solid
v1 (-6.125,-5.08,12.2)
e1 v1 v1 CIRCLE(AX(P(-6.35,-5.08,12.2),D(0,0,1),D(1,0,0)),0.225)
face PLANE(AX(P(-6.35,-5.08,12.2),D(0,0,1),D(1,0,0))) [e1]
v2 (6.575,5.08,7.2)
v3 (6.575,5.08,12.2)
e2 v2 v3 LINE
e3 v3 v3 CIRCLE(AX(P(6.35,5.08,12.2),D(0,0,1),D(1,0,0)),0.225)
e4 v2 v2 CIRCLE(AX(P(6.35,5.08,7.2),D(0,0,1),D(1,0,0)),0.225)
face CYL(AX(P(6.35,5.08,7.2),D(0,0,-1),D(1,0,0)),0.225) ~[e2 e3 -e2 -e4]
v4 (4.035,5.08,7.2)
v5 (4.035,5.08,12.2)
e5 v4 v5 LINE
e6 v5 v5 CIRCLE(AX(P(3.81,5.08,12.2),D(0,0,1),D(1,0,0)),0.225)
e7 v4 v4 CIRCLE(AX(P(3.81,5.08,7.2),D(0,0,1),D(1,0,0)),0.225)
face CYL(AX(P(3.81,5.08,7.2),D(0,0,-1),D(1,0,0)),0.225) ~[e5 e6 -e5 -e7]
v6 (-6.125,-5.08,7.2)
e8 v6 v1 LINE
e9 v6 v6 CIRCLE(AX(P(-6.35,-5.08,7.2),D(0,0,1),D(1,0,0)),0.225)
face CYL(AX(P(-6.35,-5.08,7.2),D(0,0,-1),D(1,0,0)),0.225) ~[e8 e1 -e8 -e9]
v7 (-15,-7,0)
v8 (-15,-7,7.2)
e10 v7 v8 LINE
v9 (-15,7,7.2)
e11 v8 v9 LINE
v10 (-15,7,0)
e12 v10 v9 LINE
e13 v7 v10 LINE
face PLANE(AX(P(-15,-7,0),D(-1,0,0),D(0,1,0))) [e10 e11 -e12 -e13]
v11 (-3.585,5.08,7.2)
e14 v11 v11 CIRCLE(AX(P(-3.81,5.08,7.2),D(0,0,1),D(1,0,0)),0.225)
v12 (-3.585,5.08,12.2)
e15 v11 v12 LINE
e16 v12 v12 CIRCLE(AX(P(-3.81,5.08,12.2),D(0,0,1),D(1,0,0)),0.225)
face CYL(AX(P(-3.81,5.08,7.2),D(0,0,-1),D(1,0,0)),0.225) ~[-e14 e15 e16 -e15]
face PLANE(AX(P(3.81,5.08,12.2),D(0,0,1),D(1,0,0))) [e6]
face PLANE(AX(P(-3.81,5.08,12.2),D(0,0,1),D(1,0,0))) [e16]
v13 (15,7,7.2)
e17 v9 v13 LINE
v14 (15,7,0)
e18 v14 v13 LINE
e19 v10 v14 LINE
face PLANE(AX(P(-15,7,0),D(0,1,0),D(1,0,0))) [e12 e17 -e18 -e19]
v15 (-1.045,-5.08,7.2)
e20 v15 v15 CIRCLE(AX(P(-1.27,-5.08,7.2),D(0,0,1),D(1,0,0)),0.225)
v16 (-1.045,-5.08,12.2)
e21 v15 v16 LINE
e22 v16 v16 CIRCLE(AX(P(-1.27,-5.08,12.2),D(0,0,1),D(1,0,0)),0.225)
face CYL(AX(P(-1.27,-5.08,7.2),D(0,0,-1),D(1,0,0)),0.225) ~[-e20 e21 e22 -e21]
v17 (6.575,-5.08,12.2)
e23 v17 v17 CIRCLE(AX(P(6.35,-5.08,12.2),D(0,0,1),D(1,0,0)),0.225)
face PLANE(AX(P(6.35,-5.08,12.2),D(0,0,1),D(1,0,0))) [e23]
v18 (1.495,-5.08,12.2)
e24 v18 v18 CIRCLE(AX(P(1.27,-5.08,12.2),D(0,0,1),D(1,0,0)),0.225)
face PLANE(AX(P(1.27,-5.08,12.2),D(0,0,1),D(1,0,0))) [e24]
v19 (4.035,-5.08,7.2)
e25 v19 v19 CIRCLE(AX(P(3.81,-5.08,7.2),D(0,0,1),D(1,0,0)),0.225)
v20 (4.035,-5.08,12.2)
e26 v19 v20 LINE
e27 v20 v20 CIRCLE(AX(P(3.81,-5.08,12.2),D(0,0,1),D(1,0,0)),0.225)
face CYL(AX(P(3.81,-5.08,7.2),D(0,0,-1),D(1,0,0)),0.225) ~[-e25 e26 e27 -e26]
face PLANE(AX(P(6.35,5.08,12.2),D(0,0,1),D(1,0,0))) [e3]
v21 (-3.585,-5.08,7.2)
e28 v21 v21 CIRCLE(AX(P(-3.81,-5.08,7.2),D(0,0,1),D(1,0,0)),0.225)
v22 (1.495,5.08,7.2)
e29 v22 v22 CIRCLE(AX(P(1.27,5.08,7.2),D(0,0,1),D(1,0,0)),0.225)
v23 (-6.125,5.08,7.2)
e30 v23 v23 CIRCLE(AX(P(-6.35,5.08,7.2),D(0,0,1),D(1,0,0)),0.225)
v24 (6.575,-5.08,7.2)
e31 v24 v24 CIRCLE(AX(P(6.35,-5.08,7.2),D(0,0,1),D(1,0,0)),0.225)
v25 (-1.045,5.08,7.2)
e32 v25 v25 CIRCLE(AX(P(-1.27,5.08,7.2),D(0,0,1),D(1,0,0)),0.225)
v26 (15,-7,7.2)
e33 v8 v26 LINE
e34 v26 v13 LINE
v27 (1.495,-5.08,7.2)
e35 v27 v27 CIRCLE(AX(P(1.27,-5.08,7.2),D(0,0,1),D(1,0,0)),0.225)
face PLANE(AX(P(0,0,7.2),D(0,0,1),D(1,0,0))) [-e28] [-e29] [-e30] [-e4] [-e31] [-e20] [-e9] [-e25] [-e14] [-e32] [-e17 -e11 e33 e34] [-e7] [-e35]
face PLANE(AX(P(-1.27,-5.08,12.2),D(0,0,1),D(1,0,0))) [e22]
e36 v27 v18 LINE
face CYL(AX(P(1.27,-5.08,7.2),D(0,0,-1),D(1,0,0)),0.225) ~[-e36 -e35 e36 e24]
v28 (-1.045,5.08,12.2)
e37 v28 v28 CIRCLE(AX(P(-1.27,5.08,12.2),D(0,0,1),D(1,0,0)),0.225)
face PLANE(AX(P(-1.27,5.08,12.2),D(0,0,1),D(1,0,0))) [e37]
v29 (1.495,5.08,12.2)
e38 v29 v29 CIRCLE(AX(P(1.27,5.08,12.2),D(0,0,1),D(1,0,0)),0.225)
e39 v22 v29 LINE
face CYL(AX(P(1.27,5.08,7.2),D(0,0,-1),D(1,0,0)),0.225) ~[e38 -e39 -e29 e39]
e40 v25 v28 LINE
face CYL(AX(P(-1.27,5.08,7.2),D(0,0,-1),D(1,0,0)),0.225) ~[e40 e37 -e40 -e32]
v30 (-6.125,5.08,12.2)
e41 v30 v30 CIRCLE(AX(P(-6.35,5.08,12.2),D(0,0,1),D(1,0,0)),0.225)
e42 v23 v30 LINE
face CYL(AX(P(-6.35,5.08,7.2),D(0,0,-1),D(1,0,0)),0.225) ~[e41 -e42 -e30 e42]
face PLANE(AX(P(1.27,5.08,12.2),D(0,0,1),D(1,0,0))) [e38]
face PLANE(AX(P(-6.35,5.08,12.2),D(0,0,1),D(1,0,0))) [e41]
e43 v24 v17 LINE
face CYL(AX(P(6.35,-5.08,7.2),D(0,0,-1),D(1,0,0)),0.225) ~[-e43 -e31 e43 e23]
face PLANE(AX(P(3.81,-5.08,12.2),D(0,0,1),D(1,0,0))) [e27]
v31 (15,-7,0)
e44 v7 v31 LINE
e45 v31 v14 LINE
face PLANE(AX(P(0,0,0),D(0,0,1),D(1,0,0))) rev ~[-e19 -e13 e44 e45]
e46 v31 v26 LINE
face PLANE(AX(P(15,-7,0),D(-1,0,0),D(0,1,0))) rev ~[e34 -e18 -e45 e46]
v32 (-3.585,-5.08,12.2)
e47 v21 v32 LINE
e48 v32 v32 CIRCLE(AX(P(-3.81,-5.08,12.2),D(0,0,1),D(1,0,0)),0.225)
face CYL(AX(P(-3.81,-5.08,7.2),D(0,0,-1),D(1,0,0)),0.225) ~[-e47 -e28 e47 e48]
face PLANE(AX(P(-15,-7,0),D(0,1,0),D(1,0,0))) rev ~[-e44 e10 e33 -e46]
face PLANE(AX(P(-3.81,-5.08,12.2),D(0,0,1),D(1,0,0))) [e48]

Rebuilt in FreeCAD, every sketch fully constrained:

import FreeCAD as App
import Part
import Sketcher

doc = App.newDocument("Part")
body = doc.addObject("PartDesign::Body", "Body")

# Sketch on XY plane
sketch1 = doc.addObject("Sketcher::SketchObject", "Sketch")
body.addObject(sketch1)
sketch1.AttachmentSupport = (doc.XY_Plane, [""])
sketch1.MapMode = "FlatFace"
sketch1.addGeometry(Part.LineSegment(App.Vector(-15, 7, 0), App.Vector(-15, -7, 0)), False)
sketch1.addGeometry(Part.LineSegment(App.Vector(-15, -7, 0), App.Vector(15, -7, 0)), False)
sketch1.addGeometry(Part.LineSegment(App.Vector(15, -7, 0), App.Vector(15, 7, 0)), False)
sketch1.addGeometry(Part.LineSegment(App.Vector(15, 7, 0), App.Vector(-15, 7, 0)), False)
sketch1.addConstraint(Sketcher.Constraint("Coincident", 0, 2, 1, 1))
sketch1.addConstraint(Sketcher.Constraint("Coincident", 1, 2, 2, 1))
sketch1.addConstraint(Sketcher.Constraint("Coincident", 2, 2, 3, 1))
sketch1.addConstraint(Sketcher.Constraint("Coincident", 3, 2, 0, 1))
sketch1.addConstraint(Sketcher.Constraint("Vertical", 0))
sketch1.addConstraint(Sketcher.Constraint("Horizontal", 1))
sketch1.addConstraint(Sketcher.Constraint("Vertical", 2))
sketch1.addConstraint(Sketcher.Constraint("Horizontal", 3))
sketch1.addConstraint(Sketcher.Constraint("Symmetric", 0, 2, 2, 2, -1, 1))
sketch1.addConstraint(Sketcher.Constraint("DistanceX", 1, 1, 1, 2, 30.0))
sketch1.addConstraint(Sketcher.Constraint("DistanceY", 0, 2, 0, 1, 14.0))
pad1 = doc.addObject("PartDesign::Pad", "Pad")
body.addObject(pad1)
pad1.Profile = sketch1
pad1.Length = 7.2

# Sketch on XY plane
sketch2 = doc.addObject("Sketcher::SketchObject", "Sketch001")
body.addObject(sketch2)
sketch2.AttachmentSupport = (doc.XY_Plane, [""])
sketch2.MapMode = "FlatFace"
sketch2.AttachmentOffset = App.Placement(App.Vector(0, 0, 7.2), App.Rotation())
sketch2.addGeometry(Part.Circle(App.Vector(-3.81, -5.08, 0), App.Vector(0, 0, 1), 0.225), False)
sketch2.addGeometry(Part.Circle(App.Vector(-6.35, -5.08, 0), App.Vector(0, 0, 1), 0.225), False)
sketch2.addGeometry(Part.Circle(App.Vector(-1.27, -5.08, 0), App.Vector(0, 0, 1), 0.225), False)
sketch2.addGeometry(Part.Circle(App.Vector(1.27, -5.08, 0), App.Vector(0, 0, 1), 0.225), False)
sketch2.addGeometry(Part.Circle(App.Vector(3.81, -5.08, 0), App.Vector(0, 0, 1), 0.225), False)
sketch2.addGeometry(Part.Circle(App.Vector(6.35, -5.08, 0), App.Vector(0, 0, 1), 0.225), False)
sketch2.addGeometry(Part.Circle(App.Vector(-3.81, 5.08, 0), App.Vector(0, 0, 1), 0.225), False)
sketch2.addGeometry(Part.Circle(App.Vector(-6.35, 5.08, 0), App.Vector(0, 0, 1), 0.225), False)
sketch2.addGeometry(Part.Circle(App.Vector(-1.27, 5.08, 0), App.Vector(0, 0, 1), 0.225), False)
sketch2.addGeometry(Part.Circle(App.Vector(1.27, 5.08, 0), App.Vector(0, 0, 1), 0.225), False)
sketch2.addGeometry(Part.Circle(App.Vector(3.81, 5.08, 0), App.Vector(0, 0, 1), 0.225), False)
sketch2.addGeometry(Part.Circle(App.Vector(6.35, 5.08, 0), App.Vector(0, 0, 1), 0.225), False)
sketch2.addConstraint(Sketcher.Constraint("Equal", 0, 1))
sketch2.addConstraint(Sketcher.Constraint("Equal", 1, 2))
sketch2.addConstraint(Sketcher.Constraint("Equal", 2, 3))
sketch2.addConstraint(Sketcher.Constraint("Equal", 3, 4))
sketch2.addConstraint(Sketcher.Constraint("Equal", 4, 5))
sketch2.addConstraint(Sketcher.Constraint("Equal", 5, 6))
sketch2.addConstraint(Sketcher.Constraint("Equal", 6, 7))
sketch2.addConstraint(Sketcher.Constraint("Equal", 7, 8))
sketch2.addConstraint(Sketcher.Constraint("Equal", 8, 9))
sketch2.addConstraint(Sketcher.Constraint("Equal", 9, 10))
sketch2.addConstraint(Sketcher.Constraint("Equal", 10, 11))
sketch2.addConstraint(Sketcher.Constraint("Symmetric", 4, 3, 6, 3, -1, 1))
sketch2.addConstraint(Sketcher.Constraint("Symmetric", 5, 3, 7, 3, -1, 1))
sketch2.addConstraint(Sketcher.Constraint("Symmetric", 3, 3, 8, 3, -1, 1))
sketch2.addConstraint(Sketcher.Constraint("Symmetric", 2, 3, 9, 3, -1, 1))
sketch2.addConstraint(Sketcher.Constraint("Symmetric", 0, 3, 10, 3, -1, 1))
sketch2.addConstraint(Sketcher.Constraint("Symmetric", 1, 3, 11, 3, -1, 1))
sketch2.addConstraint(Sketcher.Constraint("Symmetric", 2, 3, 3, 3, -2))
sketch2.addConstraint(Sketcher.Constraint("Symmetric", 0, 3, 4, 3, -2))
sketch2.addConstraint(Sketcher.Constraint("Symmetric", 1, 3, 5, 3, -2))
sketch2.addConstraint(Sketcher.Constraint("Horizontal", 0, 3, 1, 3))
sketch2.addConstraint(Sketcher.Constraint("Horizontal", 1, 3, 2, 3))
sketch2.addConstraint(Sketcher.Constraint("Diameter", 0, 0.45))
sketch2.addConstraint(Sketcher.Constraint("DistanceX", 1, 3, 5, 3, 12.7))
sketch2.addConstraint(Sketcher.Constraint("DistanceX", 0, 3, -1, 1, 3.81))
sketch2.addConstraint(Sketcher.Constraint("DistanceY", 0, 3, -1, 1, 5.08))
sketch2.addConstraint(Sketcher.Constraint("DistanceX", 2, 3, -1, 1, 1.27))
pad2 = doc.addObject("PartDesign::Pad", "Pad001")
body.addObject(pad2)
pad2.Profile = sketch2
pad2.Length = 5

doc.recompute()
